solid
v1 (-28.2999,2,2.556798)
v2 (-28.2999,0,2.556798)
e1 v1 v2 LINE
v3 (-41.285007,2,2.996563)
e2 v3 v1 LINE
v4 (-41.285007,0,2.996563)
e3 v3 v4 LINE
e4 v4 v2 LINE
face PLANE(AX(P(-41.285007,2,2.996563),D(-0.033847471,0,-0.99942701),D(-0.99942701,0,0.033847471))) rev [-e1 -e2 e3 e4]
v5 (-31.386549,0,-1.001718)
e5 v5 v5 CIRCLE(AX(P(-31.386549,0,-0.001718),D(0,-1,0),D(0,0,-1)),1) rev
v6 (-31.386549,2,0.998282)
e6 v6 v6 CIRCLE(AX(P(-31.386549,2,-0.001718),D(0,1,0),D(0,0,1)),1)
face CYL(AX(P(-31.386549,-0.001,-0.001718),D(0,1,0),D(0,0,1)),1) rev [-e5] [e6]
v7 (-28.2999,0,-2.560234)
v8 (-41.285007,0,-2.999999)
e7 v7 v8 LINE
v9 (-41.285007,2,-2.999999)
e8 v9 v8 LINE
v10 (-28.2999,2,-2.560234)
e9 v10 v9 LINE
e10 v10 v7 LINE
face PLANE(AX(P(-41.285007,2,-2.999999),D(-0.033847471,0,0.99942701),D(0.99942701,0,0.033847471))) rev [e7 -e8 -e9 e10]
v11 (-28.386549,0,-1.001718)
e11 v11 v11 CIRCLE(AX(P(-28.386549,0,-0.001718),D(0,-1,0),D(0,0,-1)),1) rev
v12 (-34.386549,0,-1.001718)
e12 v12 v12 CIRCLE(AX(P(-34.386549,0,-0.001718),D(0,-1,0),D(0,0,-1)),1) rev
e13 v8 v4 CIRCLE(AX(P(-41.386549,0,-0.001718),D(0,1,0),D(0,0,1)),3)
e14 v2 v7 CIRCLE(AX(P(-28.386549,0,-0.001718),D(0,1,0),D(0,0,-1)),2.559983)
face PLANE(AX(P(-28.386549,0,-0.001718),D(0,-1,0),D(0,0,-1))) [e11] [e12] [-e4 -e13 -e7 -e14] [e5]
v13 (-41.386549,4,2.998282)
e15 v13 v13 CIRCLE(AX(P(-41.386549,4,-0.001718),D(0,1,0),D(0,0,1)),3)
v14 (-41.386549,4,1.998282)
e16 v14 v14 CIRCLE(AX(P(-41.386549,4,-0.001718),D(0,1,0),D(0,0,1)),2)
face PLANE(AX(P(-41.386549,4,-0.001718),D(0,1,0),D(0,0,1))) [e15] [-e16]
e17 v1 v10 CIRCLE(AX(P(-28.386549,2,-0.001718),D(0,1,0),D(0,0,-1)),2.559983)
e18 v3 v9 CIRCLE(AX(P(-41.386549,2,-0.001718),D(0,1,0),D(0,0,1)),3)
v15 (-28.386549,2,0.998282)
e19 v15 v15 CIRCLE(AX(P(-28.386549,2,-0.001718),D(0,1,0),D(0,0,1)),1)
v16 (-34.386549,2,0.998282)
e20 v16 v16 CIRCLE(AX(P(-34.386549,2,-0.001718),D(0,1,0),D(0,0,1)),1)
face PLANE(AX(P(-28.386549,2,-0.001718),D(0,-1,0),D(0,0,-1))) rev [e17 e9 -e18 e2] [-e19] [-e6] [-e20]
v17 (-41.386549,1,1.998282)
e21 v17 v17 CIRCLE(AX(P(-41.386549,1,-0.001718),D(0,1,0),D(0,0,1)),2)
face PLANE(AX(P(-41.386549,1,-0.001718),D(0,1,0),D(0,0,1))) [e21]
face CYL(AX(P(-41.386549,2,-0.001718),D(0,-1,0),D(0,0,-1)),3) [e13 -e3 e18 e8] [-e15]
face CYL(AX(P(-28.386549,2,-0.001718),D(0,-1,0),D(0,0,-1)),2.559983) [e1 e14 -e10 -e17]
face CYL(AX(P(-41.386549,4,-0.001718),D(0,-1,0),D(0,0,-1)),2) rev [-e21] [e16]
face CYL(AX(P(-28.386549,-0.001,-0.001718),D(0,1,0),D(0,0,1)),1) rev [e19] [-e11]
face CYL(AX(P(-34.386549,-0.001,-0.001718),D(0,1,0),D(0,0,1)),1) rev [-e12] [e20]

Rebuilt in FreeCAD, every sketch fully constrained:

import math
import FreeCAD as App
import Part
import Sketcher
from FreeCAD import Vector

doc = App.newDocument("Part")
params = doc.addObject("Spreadsheet::Sheet", "Params")
for row, (alias, value) in enumerate([
    ("sketch1_radius", "3 mm"),
    ("pad1_length", "2 mm"),
    ("sketch2_diameter", "2 mm"),
    ("sketch3_diameter", "2 mm"),
    ("sketch4_diameter", "2 mm"),
    ("sketch5_diameter", "6 mm"),
    ("sketch5_diameter2", "4 mm"),
    ("pad2_length", "2 mm"),
    ("sketch6_diameter", "4 mm"),
    ("pocket4_length", "1 mm"),
], start=1):
    params.set(f"A{row}", alias)
    params.set(f"B{row}", "=" + value)
    params.setAlias(f"B{row}", alias)

body = doc.addObject("PartDesign::Body", "Body")

# Sketch on XZ plane
sketch1 = body.newObject("Sketcher::SketchObject", "Sketch")
sketch1.AttachmentSupport = (doc.getObject("XZ_Plane"), [""])
sketch1.MapMode = "FlatFace"
sketch1.addGeometry(Part.LineSegment(Vector(-28.3, -2.6, 0), Vector(-41.3, -3, 0)), False)
sketch1.addGeometry(Part.ArcOfCircle(Part.Circle(Vector(-41.4, 0, 0), Vector(0, 0, 1), 3), math.radians(88), math.radians(272)), False)
sketch1.addGeometry(Part.LineSegment(Vector(-41.3, 3, 0), Vector(-28.3, 2.6, 0)), False)
sketch1.addGeometry(Part.ArcOfCircle(Part.Circle(Vector(-28.4, 0, 0), Vector(0, 0, 1), 2.6), math.radians(-88), math.radians(88)), False)
sketch1.addConstraint(Sketcher.Constraint("Tangent", 0, 2, 1, 2))
sketch1.addConstraint(Sketcher.Constraint("Tangent", 1, 1, 2, 1))
sketch1.addConstraint(Sketcher.Constraint("Tangent", 2, 2, 3, 2))
sketch1.addConstraint(Sketcher.Constraint("Tangent", 3, 1, 0, 1))
sketch1.addConstraint(Sketcher.Constraint("Horizontal", 1, 3, 3, 3))
sketch1.addConstraint(Sketcher.Constraint("Radius", 1, 3.0))
sketch1.addConstraint(Sketcher.Constraint("DistanceY", 0, 2, -1, 1, 2.999999))
sketch1.addConstraint(Sketcher.Constraint("DistanceX", 1, 3, 3, 3, 13.0))
sketch1.addConstraint(Sketcher.Constraint("Radius", 3, 2.559983))
sketch1.addConstraint(Sketcher.Constraint("DistanceX", 2, 2, -1, 1, 28.2999))
sketch1.setExpression("Constraints[5]", "Params.sketch1_radius")
pad1 = body.newObject("PartDesign::Pad", "Pad")
pad1.Profile = sketch1
pad1.setExpression("Length", "Params.pad1_length")
pad1.Reversed = True

# Sketch on XZ plane
sketch2 = body.newObject("Sketcher::SketchObject", "Sketch001")
sketch2.AttachmentSupport = (doc.getObject("XZ_Plane"), [""])
sketch2.MapMode = "FlatFace"
sketch2.AttachmentOffset = App.Placement(Vector(0, 0, -2), App.Rotation())
sketch2.addGeometry(Part.Circle(Vector(-34.4, 0, 0), Vector(0, 0, 1), 1), False)
sketch2.addConstraint(Sketcher.Constraint("Diameter", 0, 2.0))
sketch2.addConstraint(Sketcher.Constraint("DistanceX", 0, 3, -1, 1, 34.386549))
sketch2.addConstraint(Sketcher.Constraint("DistanceY", 0, 3, -1, 1, 0.001718))
sketch2.setExpression("Constraints[0]", "Params.sketch2_diameter")
pocket1 = body.newObject("PartDesign::Pocket", "Pocket")
pocket1.Profile = sketch2
pocket1.Type = "UpToFirst"
pocket1.Reversed = True

# Sketch on XZ plane
sketch3 = body.newObject("Sketcher::SketchObject", "Sketch002")
sketch3.AttachmentSupport = (doc.getObject("XZ_Plane"), [""])
sketch3.MapMode = "FlatFace"
sketch3.AttachmentOffset = App.Placement(Vector(0, 0, -2), App.Rotation())
sketch3.addGeometry(Part.Circle(Vector(-31.4, 0, 0), Vector(0, 0, 1), 1), False)
sketch3.addConstraint(Sketcher.Constraint("Diameter", 0, 2.0))
sketch3.addConstraint(Sketcher.Constraint("DistanceX", 0, 3, -1, 1, 31.386549))
sketch3.addConstraint(Sketcher.Constraint("DistanceY", 0, 3, -1, 1, 0.001718))
sketch3.setExpression("Constraints[0]", "Params.sketch3_diameter")
pocket2 = body.newObject("PartDesign::Pocket", "Pocket001")
pocket2.Profile = sketch3
pocket2.Type = "UpToFirst"
pocket2.Reversed = True

# Sketch on XZ plane
sketch4 = body.newObject("Sketcher::SketchObject", "Sketch003")
sketch4.AttachmentSupport = (doc.getObject("XZ_Plane"), [""])
sketch4.MapMode = "FlatFace"
sketch4.AttachmentOffset = App.Placement(Vector(0, 0, -2), App.Rotation())
sketch4.addGeometry(Part.Circle(Vector(-28.4, 0, 0), Vector(0, 0, 1), 1), False)
sketch4.addConstraint(Sketcher.Constraint("Diameter", 0, 2.0))
sketch4.addConstraint(Sketcher.Constraint("DistanceX", 0, 3, -1, 1, 28.386549))
sketch4.addConstraint(Sketcher.Constraint("DistanceY", 0, 3, -1, 1, 0.001718))
sketch4.setExpression("Constraints[0]", "Params.sketch4_diameter")
pocket3 = body.newObject("PartDesign::Pocket", "Pocket002")
pocket3.Profile = sketch4
pocket3.Type = "UpToFirst"
pocket3.Reversed = True

# Sketch on XZ plane
sketch5 = body.newObject("Sketcher::SketchObject", "Sketch004")
sketch5.AttachmentSupport = (doc.getObject("XZ_Plane"), [""])
sketch5.MapMode = "FlatFace"
sketch5.AttachmentOffset = App.Placement(Vector(0, 0, -2), App.Rotation())
sketch5.addGeometry(Part.Circle(Vector(-41.4, 0, 0), Vector(0, 0, 1), 3), False)
sketch5.addGeometry(Part.Circle(Vector(-41.4, 0, 0), Vector(0, 0, 1), 2), False)
sketch5.addConstraint(Sketcher.Constraint("Coincident", 1, 3, 0, 3))
sketch5.addConstraint(Sketcher.Constraint("Diameter", 0, 6.0))
sketch5.addConstraint(Sketcher.Constraint("Diameter", 1, 4.0))
sketch5.addConstraint(Sketcher.Constraint("DistanceX", 0, 3, -1, 1, 41.386549))
sketch5.addConstraint(Sketcher.Constraint("DistanceY", 0, 3, -1, 1, 0.001718))
sketch5.setExpression("Constraints[1]", "Params.sketch5_diameter")
sketch5.setExpression("Constraints[2]", "Params.sketch5_diameter2")
pad2 = body.newObject("PartDesign::Pad", "Pad001")
pad2.Profile = sketch5
pad2.setExpression("Length", "Params.pad2_length")
pad2.Reversed = True

# Sketch on XZ plane
sketch6 = body.newObject("Sketcher::SketchObject", "Sketch005")
sketch6.AttachmentSupport = (doc.getObject("XZ_Plane"), [""])
sketch6.MapMode = "FlatFace"
sketch6.AttachmentOffset = App.Placement(Vector(0, 0, -1), App.Rotation())
sketch6.addGeometry(Part.Circle(Vector(-41.4, 0, 0), Vector(0, 0, 1), 2), False)
sketch6.addConstraint(Sketcher.Constraint("Diameter", 0, 4.0))
sketch6.addConstraint(Sketcher.Constraint("DistanceX", 0, 3, -1, 1, 41.386549))
sketch6.addConstraint(Sketcher.Constraint("DistanceY", 0, 3, -1, 1, 0.001718))
sketch6.setExpression("Constraints[0]", "Params.sketch6_diameter")
pocket4 = body.newObject("PartDesign::Pocket", "Pocket003")
pocket4.Profile = sketch6
pocket4.setExpression("Length", "Params.pocket4_length")

doc.recompute()
